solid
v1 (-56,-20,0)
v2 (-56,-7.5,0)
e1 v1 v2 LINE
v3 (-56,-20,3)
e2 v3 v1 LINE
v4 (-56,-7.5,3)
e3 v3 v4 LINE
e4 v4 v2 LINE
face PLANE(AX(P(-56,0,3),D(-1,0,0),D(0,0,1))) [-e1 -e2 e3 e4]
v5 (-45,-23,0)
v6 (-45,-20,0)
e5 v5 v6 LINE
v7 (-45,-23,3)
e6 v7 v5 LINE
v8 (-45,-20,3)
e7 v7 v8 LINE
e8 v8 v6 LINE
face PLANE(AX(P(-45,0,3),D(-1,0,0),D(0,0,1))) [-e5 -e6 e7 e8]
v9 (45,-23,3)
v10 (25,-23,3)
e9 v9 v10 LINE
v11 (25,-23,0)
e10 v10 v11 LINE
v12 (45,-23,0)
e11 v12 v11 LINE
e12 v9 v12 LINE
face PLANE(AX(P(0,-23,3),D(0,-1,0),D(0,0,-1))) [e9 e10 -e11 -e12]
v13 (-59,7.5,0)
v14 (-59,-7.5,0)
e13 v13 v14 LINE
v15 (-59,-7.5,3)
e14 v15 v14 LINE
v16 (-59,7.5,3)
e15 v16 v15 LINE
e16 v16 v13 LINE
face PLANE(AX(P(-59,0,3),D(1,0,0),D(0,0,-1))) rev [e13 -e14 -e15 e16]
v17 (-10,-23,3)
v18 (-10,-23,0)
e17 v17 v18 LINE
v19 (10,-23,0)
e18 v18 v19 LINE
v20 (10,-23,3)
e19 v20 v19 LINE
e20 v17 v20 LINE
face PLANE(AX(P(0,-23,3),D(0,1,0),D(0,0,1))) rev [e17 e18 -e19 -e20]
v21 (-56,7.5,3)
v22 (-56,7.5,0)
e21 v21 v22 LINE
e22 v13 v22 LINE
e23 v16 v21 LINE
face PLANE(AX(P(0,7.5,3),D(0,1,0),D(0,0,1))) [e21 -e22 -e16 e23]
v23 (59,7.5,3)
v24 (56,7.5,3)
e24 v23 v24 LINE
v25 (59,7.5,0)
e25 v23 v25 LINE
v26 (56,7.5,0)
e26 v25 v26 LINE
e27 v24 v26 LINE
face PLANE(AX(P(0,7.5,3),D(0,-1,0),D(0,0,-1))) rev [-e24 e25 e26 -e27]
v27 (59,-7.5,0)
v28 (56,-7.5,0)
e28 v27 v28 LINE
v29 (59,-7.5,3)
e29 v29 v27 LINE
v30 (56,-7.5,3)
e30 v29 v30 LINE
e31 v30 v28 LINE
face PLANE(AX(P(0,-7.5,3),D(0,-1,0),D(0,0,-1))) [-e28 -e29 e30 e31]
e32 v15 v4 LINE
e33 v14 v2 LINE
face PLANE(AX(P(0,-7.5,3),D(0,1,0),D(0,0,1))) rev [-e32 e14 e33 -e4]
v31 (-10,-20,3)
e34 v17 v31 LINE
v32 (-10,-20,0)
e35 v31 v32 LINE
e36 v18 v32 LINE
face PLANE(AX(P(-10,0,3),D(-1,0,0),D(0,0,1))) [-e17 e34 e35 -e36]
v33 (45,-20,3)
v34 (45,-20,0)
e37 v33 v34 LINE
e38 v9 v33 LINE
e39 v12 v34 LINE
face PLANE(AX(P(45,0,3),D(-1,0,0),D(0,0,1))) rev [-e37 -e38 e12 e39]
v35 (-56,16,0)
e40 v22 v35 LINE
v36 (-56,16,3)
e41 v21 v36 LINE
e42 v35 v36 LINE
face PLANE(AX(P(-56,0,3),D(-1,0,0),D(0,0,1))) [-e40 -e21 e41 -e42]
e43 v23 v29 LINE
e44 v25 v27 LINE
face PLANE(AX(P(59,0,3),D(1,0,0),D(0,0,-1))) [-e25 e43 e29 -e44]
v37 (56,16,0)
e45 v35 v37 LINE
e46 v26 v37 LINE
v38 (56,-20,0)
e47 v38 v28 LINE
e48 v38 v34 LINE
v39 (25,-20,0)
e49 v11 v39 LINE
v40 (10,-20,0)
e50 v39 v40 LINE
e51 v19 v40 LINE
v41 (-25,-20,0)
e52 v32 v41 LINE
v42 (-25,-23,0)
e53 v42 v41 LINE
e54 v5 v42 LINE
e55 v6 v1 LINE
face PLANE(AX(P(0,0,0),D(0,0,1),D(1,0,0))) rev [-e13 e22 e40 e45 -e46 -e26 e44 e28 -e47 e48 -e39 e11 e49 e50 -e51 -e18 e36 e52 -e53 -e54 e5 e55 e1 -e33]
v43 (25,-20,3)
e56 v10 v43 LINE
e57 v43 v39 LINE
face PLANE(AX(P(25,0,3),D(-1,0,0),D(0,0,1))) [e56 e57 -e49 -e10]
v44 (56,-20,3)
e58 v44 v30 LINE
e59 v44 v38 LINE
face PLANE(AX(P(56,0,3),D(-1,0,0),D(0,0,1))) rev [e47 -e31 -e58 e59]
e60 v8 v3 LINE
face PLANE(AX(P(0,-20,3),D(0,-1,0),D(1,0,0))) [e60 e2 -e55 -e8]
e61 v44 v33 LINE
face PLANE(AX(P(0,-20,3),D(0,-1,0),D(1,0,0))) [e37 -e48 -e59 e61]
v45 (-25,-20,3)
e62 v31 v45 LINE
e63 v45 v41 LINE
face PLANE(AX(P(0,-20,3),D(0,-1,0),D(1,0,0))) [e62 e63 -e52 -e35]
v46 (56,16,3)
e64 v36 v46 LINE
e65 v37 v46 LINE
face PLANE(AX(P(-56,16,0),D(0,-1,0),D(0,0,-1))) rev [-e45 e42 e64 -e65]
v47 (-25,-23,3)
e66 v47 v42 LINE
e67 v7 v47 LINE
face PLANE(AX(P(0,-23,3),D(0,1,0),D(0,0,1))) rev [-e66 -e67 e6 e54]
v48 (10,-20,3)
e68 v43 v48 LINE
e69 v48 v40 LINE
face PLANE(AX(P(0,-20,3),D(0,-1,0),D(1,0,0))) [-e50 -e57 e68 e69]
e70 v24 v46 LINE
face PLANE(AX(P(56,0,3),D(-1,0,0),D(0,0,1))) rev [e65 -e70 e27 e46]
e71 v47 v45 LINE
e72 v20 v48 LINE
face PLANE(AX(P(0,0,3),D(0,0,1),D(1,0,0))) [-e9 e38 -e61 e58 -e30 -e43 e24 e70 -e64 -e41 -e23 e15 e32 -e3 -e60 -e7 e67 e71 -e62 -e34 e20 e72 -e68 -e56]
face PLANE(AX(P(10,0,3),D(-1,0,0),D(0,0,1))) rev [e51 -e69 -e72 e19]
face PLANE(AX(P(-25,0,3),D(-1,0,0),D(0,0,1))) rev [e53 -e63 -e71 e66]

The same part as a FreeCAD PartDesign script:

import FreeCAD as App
import Part
import Sketcher
Q = App.Units.Quantity


def add_polygon(sketch, points):
    """Adds a closed chain of lines whose ends are joined by coincident constraints."""
    first, n = sketch.GeometryCount, len(points)
    for a, b in zip(points, points[1:] + points[:1]):
        sketch.addGeometry(Part.LineSegment(App.Vector(*a, 0), App.Vector(*b, 0)), False)
    for i in range(n):
        sketch.addConstraint(Sketcher.Constraint("Coincident", first + i, 2, first + (i + 1) % n, 1))

doc = App.newDocument("Part")
params = doc.addObject("Spreadsheet::Sheet", "Params")
for row, (alias, value) in enumerate([
    ("sketch1_width", "3 mm"),
    ("sketch1_width2", "11 mm"),
    ("sketch1_width3", "20 mm"),
    ("sketch1_width4", "15 mm"),
    ("sketch1_height", "12.5 mm"),
    ("pad1_length", "3 mm"),
    ("sketch2_width", "112 mm"),
    ("sketch2_height", "4 mm"),
    ("pocket1_length", "3 mm"),
], start=1):
    params.set(f"A{row}", alias)
    params.set(f"B{row}", "=" + value)
    params.setAlias(f"B{row}", alias)

body = doc.addObject("PartDesign::Body", "Body")

# Sketch on XY plane
sketch1 = body.newObject("Sketcher::SketchObject", "Sketch")
sketch1.AttachmentSupport = (doc.getObject("XY_Plane"), [""])
sketch1.MapMode = "FlatFace"
add_polygon(sketch1, [(-59, 7.5), (-59, -7.5), (-56, -7.5), (-56, -20), (-45, -20), (-45, -23), (-25, -23), (-25, -20), (-10, -20), (-10, -23), (10, -23), (10, -20), (25, -20), (25, -23), (45, -23), (45, -20), (56, -20), (56, -7.5), (59, -7.5), (59, 7.5), (56, 7.5), (56, 20), (-56, 20), (-56, 7.5)])  # lines 0-23
sketch1.addConstraint(Sketcher.Constraint("Vertical", 0))
sketch1.addConstraint(Sketcher.Constraint("Horizontal", 1))
sketch1.addConstraint(Sketcher.Constraint("Vertical", 2))
sketch1.addConstraint(Sketcher.Constraint("Horizontal", 3))
sketch1.addConstraint(Sketcher.Constraint("Vertical", 4))
sketch1.addConstraint(Sketcher.Constraint("Horizontal", 5))
sketch1.addConstraint(Sketcher.Constraint("Vertical", 6))
sketch1.addConstraint(Sketcher.Constraint("Horizontal", 7))
sketch1.addConstraint(Sketcher.Constraint("Vertical", 8))
sketch1.addConstraint(Sketcher.Constraint("Horizontal", 9))
sketch1.addConstraint(Sketcher.Constraint("Vertical", 10))
sketch1.addConstraint(Sketcher.Constraint("Horizontal", 11))
sketch1.addConstraint(Sketcher.Constraint("Vertical", 12))
sketch1.addConstraint(Sketcher.Constraint("Horizontal", 13))
sketch1.addConstraint(Sketcher.Constraint("Vertical", 14))
sketch1.addConstraint(Sketcher.Constraint("Horizontal", 15))
sketch1.addConstraint(Sketcher.Constraint("Vertical", 16))
sketch1.addConstraint(Sketcher.Constraint("Horizontal", 17))
sketch1.addConstraint(Sketcher.Constraint("Vertical", 18))
sketch1.addConstraint(Sketcher.Constraint("Horizontal", 19))
sketch1.addConstraint(Sketcher.Constraint("Vertical", 20))
sketch1.addConstraint(Sketcher.Constraint("Horizontal", 21))
sketch1.addConstraint(Sketcher.Constraint("Vertical", 22))
sketch1.addConstraint(Sketcher.Constraint("Horizontal", 23))
sketch1.addConstraint(Sketcher.Constraint("Symmetric", 0, 2, 18, 2, -1, 1))
sketch1.addConstraint(Sketcher.Constraint("Symmetric", 2, 2, 20, 2, -1, 1))
sketch1.addConstraint(Sketcher.Constraint("Symmetric", 15, 2, 21, 2, -1, 1))
sketch1.addConstraint(Sketcher.Constraint("Symmetric", 7, 2, 10, 2, -2))
sketch1.addConstraint(Sketcher.Constraint("Symmetric", 5, 2, 12, 2, -2))
sketch1.addConstraint(Sketcher.Constraint("Symmetric", 1, 2, 16, 2, -2))
sketch1.addConstraint(Sketcher.Constraint("Horizontal", 3, 2, 6, 2))
sketch1.addConstraint(Sketcher.Constraint("Horizontal", 5, 2, 8, 2))
sketch1.addConstraint(Sketcher.Constraint("Horizontal", 19, 2, 22, 2))
sketch1.addConstraint(Sketcher.Constraint("Equal", 5, 9))
sketch1.addConstraint(Sketcher.Constraint("Equal", 9, 13))
sketch1.addConstraint(Sketcher.Constraint("Equal", 11, 0))
sketch1.addConstraint(Sketcher.Constraint("Equal", 23, 4))
sketch1.addConstraint(Sketcher.Constraint("DistanceX", 1, 1, 1, 2, Q("3 mm")))
sketch1.addConstraint(Sketcher.Constraint("DistanceX", 3, 1, 3, 2, Q("11 mm")))
sketch1.addConstraint(Sketcher.Constraint("DistanceX", 5, 1, 5, 2, Q("20 mm")))
sketch1.addConstraint(Sketcher.Constraint("DistanceX", 7, 1, 7, 2, Q("15 mm")))
sketch1.addConstraint(Sketcher.Constraint("DistanceY", 2, 2, 2, 1, Q("12.5 mm")))
sketch1.setExpression("Constraints[61]", "Params.sketch1_width")
sketch1.setExpression("Constraints[62]", "Params.sketch1_width2")
sketch1.setExpression("Constraints[63]", "Params.sketch1_width3")
sketch1.setExpression("Constraints[64]", "Params.sketch1_width4")
sketch1.setExpression("Constraints[65]", "Params.sketch1_height")
pad1 = body.newObject("PartDesign::Pad", "Pad")
pad1.Profile = sketch1
pad1.setExpression("Length", "Params.pad1_length")

# Sketch on XY plane
sketch2 = body.newObject("Sketcher::SketchObject", "Sketch001")
sketch2.AttachmentSupport = (doc.getObject("XY_Plane"), [""])
sketch2.MapMode = "FlatFace"
sketch2.AttachmentOffset = App.Placement(App.Vector(0, 0, 3), App.Rotation())
add_polygon(sketch2, [(-56, 20), (-56, 16), (56, 16), (56, 20)])  # lines 0-3
sketch2.addConstraint(Sketcher.Constraint("Vertical", 0))
sketch2.addConstraint(Sketcher.Constraint("Horizontal", 1))
sketch2.addConstraint(Sketcher.Constraint("Vertical", 2))
sketch2.addConstraint(Sketcher.Constraint("Horizontal", 3))
sketch2.addConstraint(Sketcher.Constraint("DistanceX", 1, 1, 1, 2, Q("112 mm")))
sketch2.addConstraint(Sketcher.Constraint("DistanceY", 0, 2, 0, 1, Q("4 mm")))
sketch2.addConstraint(Sketcher.Constraint("DistanceX", 0, 2, -1, 1, Q("56 mm")))
sketch2.addConstraint(Sketcher.Constraint("DistanceY", -1, 1, 0, 2, Q("16 mm")))
sketch2.setExpression("Constraints[8]", "Params.sketch2_width")
sketch2.setExpression("Constraints[9]", "Params.sketch2_height")
pocket1 = body.newObject("PartDesign::Pocket", "Pocket")
pocket1.Profile = sketch2
pocket1.setExpression("Length", "Params.pocket1_length")

doc.recompute()
